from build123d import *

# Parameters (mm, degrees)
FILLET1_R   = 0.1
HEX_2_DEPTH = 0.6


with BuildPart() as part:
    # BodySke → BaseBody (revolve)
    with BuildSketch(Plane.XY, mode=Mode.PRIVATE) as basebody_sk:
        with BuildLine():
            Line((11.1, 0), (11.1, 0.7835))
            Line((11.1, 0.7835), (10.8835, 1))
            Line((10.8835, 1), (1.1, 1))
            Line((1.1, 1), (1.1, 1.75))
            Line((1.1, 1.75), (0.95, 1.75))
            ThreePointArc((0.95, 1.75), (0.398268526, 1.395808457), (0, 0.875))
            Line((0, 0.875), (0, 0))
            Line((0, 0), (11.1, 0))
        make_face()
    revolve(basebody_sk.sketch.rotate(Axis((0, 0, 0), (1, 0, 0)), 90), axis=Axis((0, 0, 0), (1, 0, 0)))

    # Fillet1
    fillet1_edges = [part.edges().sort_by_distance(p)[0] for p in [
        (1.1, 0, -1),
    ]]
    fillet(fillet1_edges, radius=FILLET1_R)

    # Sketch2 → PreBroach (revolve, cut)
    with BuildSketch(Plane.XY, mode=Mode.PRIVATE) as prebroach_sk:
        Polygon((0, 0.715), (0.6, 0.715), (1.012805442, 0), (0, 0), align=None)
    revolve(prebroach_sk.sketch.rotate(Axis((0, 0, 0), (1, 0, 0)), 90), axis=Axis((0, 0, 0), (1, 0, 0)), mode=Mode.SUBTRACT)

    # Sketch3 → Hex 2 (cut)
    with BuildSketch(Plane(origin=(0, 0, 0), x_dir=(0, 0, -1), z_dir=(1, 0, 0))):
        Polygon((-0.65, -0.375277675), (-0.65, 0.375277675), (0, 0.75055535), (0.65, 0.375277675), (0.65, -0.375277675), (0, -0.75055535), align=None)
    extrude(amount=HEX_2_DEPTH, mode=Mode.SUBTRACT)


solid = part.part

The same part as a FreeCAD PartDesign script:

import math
import FreeCAD as App
import Part
import Sketcher

V = App.Vector
Q = App.Units.Quantity


def edges_at(feature, points):
    """Names of the edges that pass closest to the given points."""
    edges = feature.Shape.Edges
    near = lambda p: min(range(len(edges)), key=lambda i: edges[i].distToShape(Part.Vertex(*p))[0])
    return sorted({f"Edge{near(p) + 1}" for p in points})


def add_polygon(sketch, points):
    """Adds a closed chain of lines whose ends are joined by coincident constraints."""
    first, n = sketch.GeometryCount, len(points)
    for a, b in zip(points, points[1:] + points[:1]):
        sketch.addGeometry(Part.LineSegment(App.Vector(*a, 0), App.Vector(*b, 0)), False)
    for i in range(n):
        sketch.addConstraint(Sketcher.Constraint("Coincident", first + i, 2, first + (i + 1) % n, 1))

doc = App.newDocument("Part")
body = doc.addObject("PartDesign::Body", "Body")

sketch1 = doc.addObject("Sketcher::SketchObject", "Sketch")
body.addObject(sketch1)
sketch1.AttachmentSupport = (doc.XY_Plane, [""])
sketch1.MapMode = "FlatFace"
sketch1.addGeometry([
    Part.LineSegment(V(11.1, 0, 0), V(11.1, 0.78, 0)),
    Part.LineSegment(V(11.1, 0.78, 0), V(10.88, 1, 0)),
    Part.LineSegment(V(10.88, 1, 0), V(1.1, 1, 0)),
    Part.LineSegment(V(1.1, 1, 0), V(1.1, 1.75, 0)),
    Part.LineSegment(V(1.1, 1.75, 0), V(0.95, 1.75, 0)),
    Part.ArcOfCircle(Part.Circle(V(1.68, 0, 0), V(0, 0, 1), 1.9), math.radians(113), math.radians(153)),
    Part.LineSegment(V(0, 0.88, 0), V(0, 0, 0)),
    Part.LineSegment(V(0, 0, 0), V(11.1, 0, 0)),
], False)
sketch1.addConstraint([
    Sketcher.Constraint("Coincident", 0, 2, 1, 1),
    Sketcher.Constraint("Coincident", 1, 2, 2, 1),
    Sketcher.Constraint("Coincident", 2, 2, 3, 1),
    Sketcher.Constraint("Coincident", 3, 2, 4, 1),
    Sketcher.Constraint("Coincident", 4, 2, 5, 1),
    Sketcher.Constraint("Coincident", 5, 2, 6, 1),
    Sketcher.Constraint("Coincident", 6, 2, 7, 1),
    Sketcher.Constraint("Coincident", 7, 2, 0, 1),
    Sketcher.Constraint("Vertical", 0),
    Sketcher.Constraint("Horizontal", 2),
    Sketcher.Constraint("Vertical", 3),
    Sketcher.Constraint("Horizontal", 4),
    Sketcher.Constraint("Vertical", 6),
    Sketcher.Constraint("Horizontal", 7),
    Sketcher.Constraint("Coincident", 6, 2, -1, 1),
    Sketcher.Constraint("PointOnObject", 5, 3, -1),
    Sketcher.Constraint("Angle", 1, Q("135 deg")),
    Sketcher.Constraint("DistanceX", 7, 1, 7, 2, 11.1),
    Sketcher.Constraint("DistanceY", -1, 1, 1, 2, 1.0),
    Sketcher.Constraint("DistanceX", 2, 2, 0, 2, 10.0),
    Sketcher.Constraint("DistanceX", 4, 2, 4, 1, 0.15),
    Sketcher.Constraint("DistanceY", 3, 1, 3, 2, 0.75),
    Sketcher.Constraint("DistanceY", 6, 2, 6, 1, 0.875),
    Sketcher.Constraint("DistanceX", 2, 2, 2, 1, 9.7835),
])
revolution = doc.addObject("PartDesign::Revolution", "Revolution")
body.addObject(revolution)
revolution.Profile = sketch1
revolution.ReferenceAxis = (sketch1, ["H_Axis"])
revolution.Angle = 360
doc.recompute()

fillet = doc.addObject("PartDesign::Fillet", "Fillet")
body.addObject(fillet)
fillet.Base = (revolution, edges_at(revolution, [(1.1, 0, -1)]))
fillet.Radius = 0.1

sketch2 = doc.addObject("Sketcher::SketchObject", "Sketch001")
body.addObject(sketch2)
sketch2.AttachmentSupport = (doc.XY_Plane, [""])
sketch2.MapMode = "FlatFace"
add_polygon(sketch2, [(0.6, 0.7), (0, 0.7), (0, 0), (1, 0)])
sketch2.addConstraint([
    Sketcher.Constraint("Horizontal", 0),
    Sketcher.Constraint("Vertical", 1),
    Sketcher.Constraint("Horizontal", 2),
    Sketcher.Constraint("Coincident", 1, 2, -1, 1),
    Sketcher.Constraint("Angle", 3, Q("120 deg")),
    Sketcher.Constraint("DistanceX", 0, 2, 0, 1, 0.6),
    Sketcher.Constraint("DistanceY", 1, 2, 1, 1, 0.715),
])
groove = doc.addObject("PartDesign::Groove", "Groove")
body.addObject(groove)
groove.Profile = sketch2
groove.ReferenceAxis = (sketch2, ["H_Axis"])
groove.Angle = 360

sketch3 = doc.addObject("Sketcher::SketchObject", "Sketch002")
body.addObject(sketch3)
sketch3.AttachmentSupport = (doc.YZ_Plane, [""])
sketch3.MapMode = "FlatFace"
add_polygon(sketch3, [(0.4, 0.7), (-0.4, 0.7), (-0.8, 0), (-0.4, -0.7), (0.4, -0.7), (0.8, 0)])
sketch3.addConstraint([
    Sketcher.Constraint("Horizontal", 0),
    Sketcher.Constraint("Horizontal", 3),
    Sketcher.Constraint("Symmetric", 0, 2, 3, 2, -1, 1),
    Sketcher.Constraint("Symmetric", 1, 2, 4, 2, -1, 1),
    Sketcher.Constraint("PointOnObject", 1, 2, -1),
    Sketcher.Constraint("Parallel", 2, 5),
    Sketcher.Constraint("Vertical", 0, 2, 2, 2),
    Sketcher.Constraint("Angle", 1, Q("-120 deg")),
    Sketcher.Constraint("DistanceY", 2, 2, 0, 2, 1.3),
    Sketcher.Constraint("DistanceX", 0, 2, 0, 1, 0.750555),
])
pocket1 = doc.addObject("PartDesign::Pocket", "Pocket")
body.addObject(pocket1)
pocket1.Profile = sketch3
pocket1.Length = 0.6
pocket1.Reversed = True

doc.recompute()
